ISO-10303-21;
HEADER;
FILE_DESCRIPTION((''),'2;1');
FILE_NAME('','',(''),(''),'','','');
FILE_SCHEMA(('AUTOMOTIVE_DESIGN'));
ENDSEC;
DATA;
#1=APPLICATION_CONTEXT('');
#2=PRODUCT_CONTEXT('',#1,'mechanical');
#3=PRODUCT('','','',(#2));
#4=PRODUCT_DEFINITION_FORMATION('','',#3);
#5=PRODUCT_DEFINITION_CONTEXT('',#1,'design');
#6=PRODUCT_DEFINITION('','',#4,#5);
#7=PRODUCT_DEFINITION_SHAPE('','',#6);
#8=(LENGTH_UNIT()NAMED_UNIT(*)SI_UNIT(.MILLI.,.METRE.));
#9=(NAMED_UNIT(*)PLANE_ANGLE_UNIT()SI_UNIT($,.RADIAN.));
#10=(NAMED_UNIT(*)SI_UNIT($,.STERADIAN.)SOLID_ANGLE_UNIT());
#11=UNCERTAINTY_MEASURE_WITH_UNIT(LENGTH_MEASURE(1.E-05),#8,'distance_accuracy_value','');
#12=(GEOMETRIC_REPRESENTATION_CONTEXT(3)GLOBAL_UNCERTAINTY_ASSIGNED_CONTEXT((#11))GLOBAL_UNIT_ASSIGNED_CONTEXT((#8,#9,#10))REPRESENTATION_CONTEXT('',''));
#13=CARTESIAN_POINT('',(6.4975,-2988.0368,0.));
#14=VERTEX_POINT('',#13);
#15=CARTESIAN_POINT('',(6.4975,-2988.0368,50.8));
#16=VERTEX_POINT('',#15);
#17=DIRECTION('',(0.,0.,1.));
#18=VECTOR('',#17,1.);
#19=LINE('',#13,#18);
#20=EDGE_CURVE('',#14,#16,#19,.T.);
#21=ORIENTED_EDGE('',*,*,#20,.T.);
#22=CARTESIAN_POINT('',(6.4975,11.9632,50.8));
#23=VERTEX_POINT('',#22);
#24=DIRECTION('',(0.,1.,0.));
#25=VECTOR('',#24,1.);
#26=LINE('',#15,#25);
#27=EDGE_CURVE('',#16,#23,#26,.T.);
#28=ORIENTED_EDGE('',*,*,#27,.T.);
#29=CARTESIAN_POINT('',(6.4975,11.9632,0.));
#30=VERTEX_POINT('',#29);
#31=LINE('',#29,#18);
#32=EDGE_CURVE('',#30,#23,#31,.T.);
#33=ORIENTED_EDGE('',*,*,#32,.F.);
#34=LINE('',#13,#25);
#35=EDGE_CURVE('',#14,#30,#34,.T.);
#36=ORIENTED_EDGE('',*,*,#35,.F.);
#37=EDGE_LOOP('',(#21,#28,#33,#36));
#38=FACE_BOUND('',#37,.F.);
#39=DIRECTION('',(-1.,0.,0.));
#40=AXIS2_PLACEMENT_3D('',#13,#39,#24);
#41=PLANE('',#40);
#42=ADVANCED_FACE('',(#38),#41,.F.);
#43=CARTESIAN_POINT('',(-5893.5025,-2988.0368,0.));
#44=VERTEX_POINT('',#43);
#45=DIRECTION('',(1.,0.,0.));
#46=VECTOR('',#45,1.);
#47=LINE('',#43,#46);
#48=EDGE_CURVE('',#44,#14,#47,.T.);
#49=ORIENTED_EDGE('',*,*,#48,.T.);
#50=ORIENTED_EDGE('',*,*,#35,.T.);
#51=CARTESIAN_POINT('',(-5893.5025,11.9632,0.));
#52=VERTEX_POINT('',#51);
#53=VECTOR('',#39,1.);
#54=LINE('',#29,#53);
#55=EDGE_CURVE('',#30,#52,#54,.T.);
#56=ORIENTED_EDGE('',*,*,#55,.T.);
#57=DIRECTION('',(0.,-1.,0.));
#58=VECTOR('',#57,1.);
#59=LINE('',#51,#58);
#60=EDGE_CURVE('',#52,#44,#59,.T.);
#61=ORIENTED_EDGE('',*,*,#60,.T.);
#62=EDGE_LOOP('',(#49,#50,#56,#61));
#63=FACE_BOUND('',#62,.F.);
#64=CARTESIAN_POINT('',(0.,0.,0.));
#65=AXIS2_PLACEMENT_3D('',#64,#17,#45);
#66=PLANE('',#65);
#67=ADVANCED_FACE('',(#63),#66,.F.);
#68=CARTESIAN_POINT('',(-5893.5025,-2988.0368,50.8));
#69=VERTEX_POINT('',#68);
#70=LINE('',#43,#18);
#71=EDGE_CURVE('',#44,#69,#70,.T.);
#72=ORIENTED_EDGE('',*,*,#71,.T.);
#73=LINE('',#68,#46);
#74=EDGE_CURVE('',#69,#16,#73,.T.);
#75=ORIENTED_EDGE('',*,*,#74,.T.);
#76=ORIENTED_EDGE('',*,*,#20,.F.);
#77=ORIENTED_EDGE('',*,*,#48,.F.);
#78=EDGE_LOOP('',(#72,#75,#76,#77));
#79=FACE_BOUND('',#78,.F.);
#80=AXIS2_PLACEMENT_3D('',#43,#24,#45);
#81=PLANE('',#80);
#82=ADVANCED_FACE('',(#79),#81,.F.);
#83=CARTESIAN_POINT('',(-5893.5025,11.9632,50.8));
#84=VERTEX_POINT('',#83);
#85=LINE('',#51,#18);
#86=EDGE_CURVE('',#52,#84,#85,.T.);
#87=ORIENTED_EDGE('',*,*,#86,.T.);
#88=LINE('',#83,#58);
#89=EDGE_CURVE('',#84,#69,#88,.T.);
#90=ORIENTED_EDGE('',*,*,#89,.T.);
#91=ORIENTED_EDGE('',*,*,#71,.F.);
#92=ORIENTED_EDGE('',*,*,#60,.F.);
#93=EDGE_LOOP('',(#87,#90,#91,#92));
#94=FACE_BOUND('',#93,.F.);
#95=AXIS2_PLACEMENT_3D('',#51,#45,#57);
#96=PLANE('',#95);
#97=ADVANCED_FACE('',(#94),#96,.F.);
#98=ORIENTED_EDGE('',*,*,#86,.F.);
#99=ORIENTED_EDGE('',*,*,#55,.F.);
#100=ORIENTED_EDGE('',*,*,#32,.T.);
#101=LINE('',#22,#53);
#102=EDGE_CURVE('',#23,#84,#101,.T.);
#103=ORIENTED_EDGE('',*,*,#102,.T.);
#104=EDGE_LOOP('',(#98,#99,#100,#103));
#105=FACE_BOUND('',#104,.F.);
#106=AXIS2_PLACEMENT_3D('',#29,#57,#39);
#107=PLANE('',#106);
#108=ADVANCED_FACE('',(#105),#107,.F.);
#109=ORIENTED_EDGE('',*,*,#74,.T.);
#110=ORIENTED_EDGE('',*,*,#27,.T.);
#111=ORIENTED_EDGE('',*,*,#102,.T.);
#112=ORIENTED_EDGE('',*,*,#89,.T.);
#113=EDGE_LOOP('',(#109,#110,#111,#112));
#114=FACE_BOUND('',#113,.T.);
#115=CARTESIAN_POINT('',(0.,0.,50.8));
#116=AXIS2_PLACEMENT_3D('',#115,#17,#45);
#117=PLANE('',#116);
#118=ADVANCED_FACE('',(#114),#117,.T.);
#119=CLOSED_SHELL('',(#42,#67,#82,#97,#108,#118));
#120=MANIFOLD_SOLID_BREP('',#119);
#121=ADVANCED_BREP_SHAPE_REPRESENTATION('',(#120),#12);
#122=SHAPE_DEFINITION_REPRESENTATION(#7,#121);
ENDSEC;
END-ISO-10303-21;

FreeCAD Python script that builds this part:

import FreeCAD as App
import Part
import Sketcher

V = App.Vector
Q = App.Units.Quantity


def add_polygon(sketch, points):
    """Adds a closed chain of lines whose ends are joined by coincident constraints."""
    first, n = sketch.GeometryCount, len(points)
    for a, b in zip(points, points[1:] + points[:1]):
        sketch.addGeometry(Part.LineSegment(App.Vector(*a, 0), App.Vector(*b, 0)), False)
    for i in range(n):
        sketch.addConstraint(Sketcher.Constraint("Coincident", first + i, 2, first + (i + 1) % n, 1))

doc = App.newDocument("Part")
body = doc.addObject("PartDesign::Body", "Body")

sketch1 = doc.addObject("Sketcher::SketchObject", "Sketch")
body.addObject(sketch1)
sketch1.AttachmentSupport = (doc.XY_Plane, [""])
sketch1.MapMode = "FlatFace"
add_polygon(sketch1, [(-5894, 12), (-5894, -2988), (6, -2988), (6, 12)])
sketch1.addConstraint([
    Sketcher.Constraint("Vertical", 0),
    Sketcher.Constraint("Horizontal", 1),
    Sketcher.Constraint("Vertical", 2),
    Sketcher.Constraint("Horizontal", 3),
    Sketcher.Constraint("DistanceX", 1, 1, 1, 2, Q("5900 mm")),
    Sketcher.Constraint("DistanceY", 0, 2, 0, 1, Q("3000 mm")),
    Sketcher.Constraint("DistanceX", 0, 2, -1, 1, Q("5893.5025 mm")),
    Sketcher.Constraint("DistanceY", 0, 2, -1, 1, Q("2988.0368 mm")),
])
pad1 = doc.addObject("PartDesign::Pad", "Pad")
body.addObject(pad1)
pad1.Profile = sketch1
pad1.Length = 50.8

doc.recompute()
